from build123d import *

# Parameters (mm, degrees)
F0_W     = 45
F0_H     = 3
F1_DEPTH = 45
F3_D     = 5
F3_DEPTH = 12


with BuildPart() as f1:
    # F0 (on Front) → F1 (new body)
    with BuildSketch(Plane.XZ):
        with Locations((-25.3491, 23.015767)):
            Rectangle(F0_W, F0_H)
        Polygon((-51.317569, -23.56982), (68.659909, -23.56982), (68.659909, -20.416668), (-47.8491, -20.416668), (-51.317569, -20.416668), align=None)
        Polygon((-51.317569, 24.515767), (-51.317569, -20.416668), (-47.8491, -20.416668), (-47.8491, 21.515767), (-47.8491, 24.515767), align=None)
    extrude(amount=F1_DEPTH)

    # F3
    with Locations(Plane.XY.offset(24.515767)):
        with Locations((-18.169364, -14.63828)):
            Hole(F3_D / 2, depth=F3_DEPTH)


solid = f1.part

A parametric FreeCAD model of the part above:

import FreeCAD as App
import Part
import Sketcher
Q = App.Units.Quantity


def add_polygon(sketch, points):
    """Adds a closed chain of lines whose ends are joined by coincident constraints."""
    first, n = sketch.GeometryCount, len(points)
    for a, b in zip(points, points[1:] + points[:1]):
        sketch.addGeometry(Part.LineSegment(App.Vector(*a, 0), App.Vector(*b, 0)), False)
    for i in range(n):
        sketch.addConstraint(Sketcher.Constraint("Coincident", first + i, 2, first + (i + 1) % n, 1))

doc = App.newDocument("Part")
body = doc.addObject("PartDesign::Body", "Body")

# Sketch on XZ plane
sketch1 = body.newObject("Sketcher::SketchObject", "Sketch")
sketch1.AttachmentSupport = (doc.getObject("XZ_Plane"), [""])
sketch1.MapMode = "FlatFace"
add_polygon(sketch1, [(-47.8, 21.5), (-2.8, 21.5), (-2.8, 24.5), (-51.3, 24.5), (-51.3, -23.6), (68.7, -23.6), (68.7, -20.4), (-47.8, -20.4)])  # lines 0-7
sketch1.addConstraint([
    Sketcher.Constraint("Horizontal", 0),
    Sketcher.Constraint("Vertical", 1),
    Sketcher.Constraint("Horizontal", 2),
    Sketcher.Constraint("Vertical", 3),
    Sketcher.Constraint("Horizontal", 4),
    Sketcher.Constraint("Vertical", 5),
    Sketcher.Constraint("Horizontal", 6),
    Sketcher.Constraint("Vertical", 7),
    Sketcher.Constraint("DistanceX", 0, 1, 0, 2, Q("45 mm")),
    Sketcher.Constraint("DistanceY", 1, 1, 1, 2, Q("3 mm")),
    Sketcher.Constraint("DistanceX", 2, 2, 2, 1, Q("48.468469 mm")),
    Sketcher.Constraint("DistanceX", 6, 2, 6, 1, Q("116.509009 mm")),
    Sketcher.Constraint("DistanceY", 5, 1, 5, 2, Q("3.153152 mm")),
    Sketcher.Constraint("DistanceX", 0, 2, -1, 1, Q("2.8491 mm")),
    Sketcher.Constraint("DistanceY", 3, 2, 3, 1, Q("48.085587 mm")),
    Sketcher.Constraint("DistanceY", 3, 2, -1, 1, Q("23.56982 mm")),
])
pad1 = body.newObject("PartDesign::Pad", "Pad")
pad1.Profile = sketch1
pad1.Length = 45

# Sketch on XY plane
sketch2 = body.newObject("Sketcher::SketchObject", "Sketch001")
sketch2.AttachmentSupport = (doc.getObject("XY_Plane"), [""])
sketch2.MapMode = "FlatFace"
sketch2.AttachmentOffset = App.Placement(App.Vector(0, 0, 24.515767), App.Rotation())
sketch2.addGeometry(Part.Circle(App.Vector(-18.2, -14.6, 0), App.Vector(0, 0, 1), 2.5), False)
sketch2.addConstraint([
    Sketcher.Constraint("Diameter", 0, Q("5 mm")),
    Sketcher.Constraint("DistanceY", 0, 3, -1, 1, Q("14.63828 mm")),
    Sketcher.Constraint("DistanceX", 0, 3, -1, 1, Q("18.169364 mm")),
])
doc.recompute()
hole = body.newObject("PartDesign::Hole", "Hole")
hole.Profile = sketch2
hole.ThreadType = "None"
hole.Diameter = 5
hole.DepthType = "Dimension"
hole.Depth = 12
hole.DrillPoint = "Flat"

doc.recompute()
